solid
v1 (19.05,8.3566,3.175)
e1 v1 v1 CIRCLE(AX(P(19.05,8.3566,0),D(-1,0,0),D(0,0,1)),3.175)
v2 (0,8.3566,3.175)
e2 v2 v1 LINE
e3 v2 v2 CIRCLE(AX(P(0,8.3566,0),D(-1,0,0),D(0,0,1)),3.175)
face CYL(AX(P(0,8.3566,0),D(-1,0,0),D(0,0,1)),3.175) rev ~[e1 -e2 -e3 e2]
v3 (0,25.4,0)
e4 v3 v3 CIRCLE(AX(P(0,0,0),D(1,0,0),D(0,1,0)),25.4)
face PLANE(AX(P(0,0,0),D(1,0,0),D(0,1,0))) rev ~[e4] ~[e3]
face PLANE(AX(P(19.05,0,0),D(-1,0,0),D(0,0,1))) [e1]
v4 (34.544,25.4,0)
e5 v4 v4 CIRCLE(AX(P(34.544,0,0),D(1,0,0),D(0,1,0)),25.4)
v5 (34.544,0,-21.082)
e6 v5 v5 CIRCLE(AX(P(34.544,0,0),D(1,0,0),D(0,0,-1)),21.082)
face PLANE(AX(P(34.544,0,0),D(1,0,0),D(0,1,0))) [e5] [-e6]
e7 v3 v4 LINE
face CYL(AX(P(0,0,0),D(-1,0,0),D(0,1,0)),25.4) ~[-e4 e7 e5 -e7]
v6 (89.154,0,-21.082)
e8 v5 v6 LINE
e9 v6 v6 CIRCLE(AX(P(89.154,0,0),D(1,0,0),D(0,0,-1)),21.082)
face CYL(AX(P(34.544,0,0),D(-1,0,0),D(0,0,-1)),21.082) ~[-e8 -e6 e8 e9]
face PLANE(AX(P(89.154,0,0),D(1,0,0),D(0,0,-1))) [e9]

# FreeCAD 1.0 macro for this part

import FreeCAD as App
import Part
import Sketcher
from FreeCAD import Vector
Q = App.Units.Quantity

doc = App.newDocument("Part")
body = doc.addObject("PartDesign::Body", "Body")

sketch1 = body.newObject("Sketcher::SketchObject", "Sketch")
sketch1.AttachmentSupport = (doc.getObject("YZ_Plane"), [""])
sketch1.MapMode = "FlatFace"
sketch1.addGeometry(Part.Circle(Vector(0, 0, 0), Vector(0, 0, 1), 25.4), False)
sketch1.addConstraint([
    Sketcher.Constraint("Coincident", 0, 3, -1, 1),
    Sketcher.Constraint("Diameter", 0, Q("2 in")),
])
pad1 = body.newObject("PartDesign::Pad", "Pad")
pad1.Profile = sketch1
pad1.Length = Q("1.36 in")

sketch2 = body.newObject("Sketcher::SketchObject", "Sketch001")
sketch2.AttachmentSupport = (doc.getObject("YZ_Plane"), [""])
sketch2.MapMode = "FlatFace"
sketch2.AttachmentOffset = App.Placement(Vector(0, 0, 1.36 * 25.4), App.Rotation())
sketch2.addGeometry(Part.Circle(Vector(0, 0, 0), Vector(0, 0, 1), 21.082), False)
sketch2.addConstraint([
    Sketcher.Constraint("Coincident", 0, 3, -1, 1),
    Sketcher.Constraint("Diameter", 0, Q("1.66 in")),
])
pad2 = body.newObject("PartDesign::Pad", "Pad001")
pad2.Profile = sketch2
pad2.Length = Q("2.15 in")

sketch3 = body.newObject("Sketcher::SketchObject", "Sketch002")
sketch3.AttachmentSupport = (doc.getObject("YZ_Plane"), [""])
sketch3.MapMode = "FlatFace"
sketch3.addGeometry(Part.Circle(Vector(8.3566, 0, 0), Vector(0, 0, 1), 3.175), False)
sketch3.addConstraint([
    Sketcher.Constraint("PointOnObject", 0, 3, -1),
    Sketcher.Constraint("Diameter", 0, Q("0.25 in")),
    Sketcher.Constraint("DistanceX", -1, 1, 0, 3, Q("0.329 in")),
])
pocket1 = body.newObject("PartDesign::Pocket", "Pocket")
pocket1.Profile = sketch3
pocket1.Length = Q("0.75 in")
pocket1.Reversed = True

doc.recompute()
